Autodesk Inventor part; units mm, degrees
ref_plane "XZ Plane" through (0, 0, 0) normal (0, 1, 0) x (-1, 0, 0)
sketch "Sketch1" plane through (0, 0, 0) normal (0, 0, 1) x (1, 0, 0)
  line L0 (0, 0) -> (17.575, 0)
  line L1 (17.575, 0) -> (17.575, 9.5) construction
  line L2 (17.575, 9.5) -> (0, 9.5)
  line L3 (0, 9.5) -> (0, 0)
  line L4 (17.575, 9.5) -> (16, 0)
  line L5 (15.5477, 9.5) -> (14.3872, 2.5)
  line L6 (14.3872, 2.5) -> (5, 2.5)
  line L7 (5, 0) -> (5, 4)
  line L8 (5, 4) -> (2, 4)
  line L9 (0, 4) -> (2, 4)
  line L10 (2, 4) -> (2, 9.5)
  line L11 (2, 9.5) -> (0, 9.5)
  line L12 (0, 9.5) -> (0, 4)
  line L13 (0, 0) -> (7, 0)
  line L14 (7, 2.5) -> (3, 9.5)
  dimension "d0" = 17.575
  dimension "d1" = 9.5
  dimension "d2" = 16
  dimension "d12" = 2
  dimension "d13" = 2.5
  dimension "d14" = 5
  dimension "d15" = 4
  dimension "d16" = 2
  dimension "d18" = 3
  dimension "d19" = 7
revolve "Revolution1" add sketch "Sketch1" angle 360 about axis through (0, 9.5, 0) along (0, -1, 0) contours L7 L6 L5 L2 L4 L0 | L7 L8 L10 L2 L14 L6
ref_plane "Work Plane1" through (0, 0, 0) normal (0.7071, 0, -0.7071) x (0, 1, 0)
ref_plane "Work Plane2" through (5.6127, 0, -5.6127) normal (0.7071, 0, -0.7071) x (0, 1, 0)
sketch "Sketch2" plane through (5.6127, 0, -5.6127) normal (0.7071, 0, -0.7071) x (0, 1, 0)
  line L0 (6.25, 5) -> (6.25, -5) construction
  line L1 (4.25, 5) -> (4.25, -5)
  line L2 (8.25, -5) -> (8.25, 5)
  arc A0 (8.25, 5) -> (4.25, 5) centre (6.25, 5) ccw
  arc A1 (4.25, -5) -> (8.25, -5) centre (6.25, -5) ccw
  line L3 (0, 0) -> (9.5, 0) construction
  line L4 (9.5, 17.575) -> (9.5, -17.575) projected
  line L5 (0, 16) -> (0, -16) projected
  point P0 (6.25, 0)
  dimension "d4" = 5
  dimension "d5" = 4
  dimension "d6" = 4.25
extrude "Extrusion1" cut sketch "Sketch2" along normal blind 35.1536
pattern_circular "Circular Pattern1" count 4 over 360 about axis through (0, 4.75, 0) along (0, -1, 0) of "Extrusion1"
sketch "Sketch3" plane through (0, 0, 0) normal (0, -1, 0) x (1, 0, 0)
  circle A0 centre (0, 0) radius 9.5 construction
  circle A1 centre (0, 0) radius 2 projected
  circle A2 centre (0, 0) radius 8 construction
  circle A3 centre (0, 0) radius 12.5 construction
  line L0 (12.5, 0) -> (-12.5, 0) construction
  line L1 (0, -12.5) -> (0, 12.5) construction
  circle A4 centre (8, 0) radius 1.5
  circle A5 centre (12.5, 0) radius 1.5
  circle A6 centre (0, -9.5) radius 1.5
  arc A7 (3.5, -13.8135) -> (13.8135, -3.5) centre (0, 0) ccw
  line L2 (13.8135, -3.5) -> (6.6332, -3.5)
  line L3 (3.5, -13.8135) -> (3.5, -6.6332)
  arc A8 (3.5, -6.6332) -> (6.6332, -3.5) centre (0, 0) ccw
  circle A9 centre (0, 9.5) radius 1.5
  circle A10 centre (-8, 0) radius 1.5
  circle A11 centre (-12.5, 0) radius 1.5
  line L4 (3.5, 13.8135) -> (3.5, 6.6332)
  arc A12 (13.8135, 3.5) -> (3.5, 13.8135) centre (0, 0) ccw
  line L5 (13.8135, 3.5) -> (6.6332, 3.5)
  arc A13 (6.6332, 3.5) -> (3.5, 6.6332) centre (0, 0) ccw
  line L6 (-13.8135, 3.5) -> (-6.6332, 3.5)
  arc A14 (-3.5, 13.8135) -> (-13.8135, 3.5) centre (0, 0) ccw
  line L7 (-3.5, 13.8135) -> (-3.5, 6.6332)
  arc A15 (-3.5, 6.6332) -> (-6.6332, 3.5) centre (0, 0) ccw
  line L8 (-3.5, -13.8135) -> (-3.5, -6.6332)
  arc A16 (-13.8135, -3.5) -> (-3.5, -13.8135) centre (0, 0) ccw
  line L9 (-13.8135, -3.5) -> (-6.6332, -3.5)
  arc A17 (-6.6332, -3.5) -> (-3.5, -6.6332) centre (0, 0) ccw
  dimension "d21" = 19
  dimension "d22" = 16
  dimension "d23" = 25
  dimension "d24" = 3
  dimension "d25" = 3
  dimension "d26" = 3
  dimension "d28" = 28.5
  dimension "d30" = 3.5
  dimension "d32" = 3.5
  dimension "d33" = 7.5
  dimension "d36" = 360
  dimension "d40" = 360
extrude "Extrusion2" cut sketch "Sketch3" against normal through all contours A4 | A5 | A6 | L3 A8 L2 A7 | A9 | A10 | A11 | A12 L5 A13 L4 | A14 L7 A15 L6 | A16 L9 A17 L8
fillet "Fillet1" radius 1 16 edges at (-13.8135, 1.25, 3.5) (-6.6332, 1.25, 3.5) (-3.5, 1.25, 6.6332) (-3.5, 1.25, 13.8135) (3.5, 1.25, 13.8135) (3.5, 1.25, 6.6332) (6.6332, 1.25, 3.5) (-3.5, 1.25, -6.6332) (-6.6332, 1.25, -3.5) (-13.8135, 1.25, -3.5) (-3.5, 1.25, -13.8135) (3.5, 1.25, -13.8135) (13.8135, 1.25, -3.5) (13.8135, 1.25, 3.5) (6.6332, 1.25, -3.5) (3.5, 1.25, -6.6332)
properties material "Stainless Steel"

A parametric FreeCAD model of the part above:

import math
import FreeCAD as App
import Part
import Sketcher


def edges_at(feature, points):
    """Names of the edges that pass closest to the given points."""
    edges = feature.Shape.Edges
    near = lambda p: min(range(len(edges)), key=lambda i: edges[i].distToShape(Part.Vertex(*p))[0])
    return sorted({f"Edge{near(p) + 1}" for p in points})

doc = App.newDocument("Part")
body = doc.addObject("PartDesign::Body", "Body")

# Sketch on XY plane
sketch1 = body.newObject("Sketcher::SketchObject", "Sketch")
sketch1.AttachmentSupport = (doc.getObject("XY_Plane"), [""])
sketch1.MapMode = "FlatFace"
sketch1.addGeometry(Part.LineSegment(App.Vector(5, 0, 0), App.Vector(16, 0, 0)), False)
sketch1.addGeometry(Part.LineSegment(App.Vector(16, 0, 0), App.Vector(17.6, 9.5, 0)), False)
sketch1.addGeometry(Part.LineSegment(App.Vector(17.6, 9.5, 0), App.Vector(15.5, 9.5, 0)), False)
sketch1.addGeometry(Part.LineSegment(App.Vector(15.5, 9.5, 0), App.Vector(14.4, 2.5, 0)), False)
sketch1.addGeometry(Part.LineSegment(App.Vector(14.4, 2.5, 0), App.Vector(7, 2.5, 0)), False)
sketch1.addGeometry(Part.LineSegment(App.Vector(7, 2.5, 0), App.Vector(3, 9.5, 0)), False)
sketch1.addGeometry(Part.LineSegment(App.Vector(3, 9.5, 0), App.Vector(2, 9.5, 0)), False)
sketch1.addGeometry(Part.LineSegment(App.Vector(2, 9.5, 0), App.Vector(2, 4, 0)), False)
sketch1.addGeometry(Part.LineSegment(App.Vector(2, 4, 0), App.Vector(5, 4, 0)), False)
sketch1.addGeometry(Part.LineSegment(App.Vector(5, 4, 0), App.Vector(5, 0, 0)), False)
sketch1.addConstraint(Sketcher.Constraint("Coincident", 0, 2, 1, 1))
sketch1.addConstraint(Sketcher.Constraint("Coincident", 1, 2, 2, 1))
sketch1.addConstraint(Sketcher.Constraint("Coincident", 2, 2, 3, 1))
sketch1.addConstraint(Sketcher.Constraint("Coincident", 3, 2, 4, 1))
sketch1.addConstraint(Sketcher.Constraint("Coincident", 4, 2, 5, 1))
sketch1.addConstraint(Sketcher.Constraint("Coincident", 5, 2, 6, 1))
sketch1.addConstraint(Sketcher.Constraint("Coincident", 6, 2, 7, 1))
sketch1.addConstraint(Sketcher.Constraint("Coincident", 7, 2, 8, 1))
sketch1.addConstraint(Sketcher.Constraint("Coincident", 8, 2, 9, 1))
sketch1.addConstraint(Sketcher.Constraint("Coincident", 9, 2, 0, 1))
sketch1.addConstraint(Sketcher.Constraint("Horizontal", 0))
sketch1.addConstraint(Sketcher.Constraint("Horizontal", 2))
sketch1.addConstraint(Sketcher.Constraint("Horizontal", 4))
sketch1.addConstraint(Sketcher.Constraint("Horizontal", 6))
sketch1.addConstraint(Sketcher.Constraint("Vertical", 7))
sketch1.addConstraint(Sketcher.Constraint("Horizontal", 8))
sketch1.addConstraint(Sketcher.Constraint("Vertical", 9))
sketch1.addConstraint(Sketcher.Constraint("PointOnObject", 0, 2, -1))
sketch1.addConstraint(Sketcher.Constraint("Parallel", 1, 3))
sketch1.addConstraint(Sketcher.Constraint("Horizontal", 2, 2, 5, 2))
sketch1.addConstraint(Sketcher.Constraint("DistanceX", 8, 1, 8, 2, 3.0))
sketch1.addConstraint(Sketcher.Constraint("DistanceY", 9, 2, 9, 1, 4.0))
sketch1.addConstraint(Sketcher.Constraint("DistanceX", -1, 1, 0, 2, 16.0))
sketch1.addConstraint(Sketcher.Constraint("DistanceX", -1, 1, 4, 2, 7.0))
sketch1.addConstraint(Sketcher.Constraint("DistanceX", -1, 1, 5, 2, 3.0))
sketch1.addConstraint(Sketcher.Constraint("DistanceX", -1, 1, 6, 2, 2.0))
sketch1.addConstraint(Sketcher.Constraint("DistanceY", 3, 2, 2, 2, 7.0))
sketch1.addConstraint(Sketcher.Constraint("DistanceY", -1, 1, 1, 2, 9.5))
sketch1.addConstraint(Sketcher.Constraint("DistanceX", -1, 1, 1, 2, 17.575))
sketch1.addConstraint(Sketcher.Constraint("DistanceX", 2, 2, 2, 1, 2.0273))
revolution = body.newObject("PartDesign::Revolution", "Revolution")
revolution.Profile = sketch1
revolution.ReferenceAxis = (sketch1, ["V_Axis"])
revolution.Angle = 360

# Sketch on an angled plane
sketch2 = body.newObject("Sketcher::SketchObject", "Sketch001")
sketch2.Placement = App.Placement(App.Vector(5.6127, 0, -5.6127), App.Rotation(App.Vector(0, 1, 0), App.Vector(0.707106781, 0, 0.707106781), App.Vector(0.707106781, 0, -0.707106781), "ZXY"))
sketch2.addGeometry(Part.ArcOfCircle(Part.Circle(App.Vector(6.2, 5, 0), App.Vector(0, 0, 1), 2), math.radians(0), math.radians(180)), False)
sketch2.addGeometry(Part.LineSegment(App.Vector(4.2, 5, 0), App.Vector(4.2, -5, 0)), False)
sketch2.addGeometry(Part.ArcOfCircle(Part.Circle(App.Vector(6.2, -5, 0), App.Vector(0, 0, 1), 2), math.radians(180), math.radians(360)), False)
sketch2.addGeometry(Part.LineSegment(App.Vector(8.2, -5, 0), App.Vector(8.2, 5, 0)), False)
sketch2.addConstraint(Sketcher.Constraint("Tangent", 0, 2, 1, 1))
sketch2.addConstraint(Sketcher.Constraint("Tangent", 1, 2, 2, 1))
sketch2.addConstraint(Sketcher.Constraint("Tangent", 2, 2, 3, 1))
sketch2.addConstraint(Sketcher.Constraint("Tangent", 3, 2, 0, 1))
sketch2.addConstraint(Sketcher.Constraint("Vertical", 1))
sketch2.addConstraint(Sketcher.Constraint("Vertical", 3))
sketch2.addConstraint(Sketcher.Constraint("Radius", 0, 2.0))
sketch2.addConstraint(Sketcher.Constraint("DistanceY", -1, 1, 0, 3, 5.0))
sketch2.addConstraint(Sketcher.Constraint("DistanceY", 2, 3, -1, 1, 5.0))
sketch2.addConstraint(Sketcher.Constraint("DistanceX", -1, 1, 0, 2, 4.25))
pocket1 = body.newObject("PartDesign::Pocket", "Pocket")
pocket1.Profile = sketch2
pocket1.Length = 35.1536
pocket1.Reversed = True
doc.recompute()

polarpattern = body.newObject("PartDesign::PolarPattern", "PolarPattern")
polarpattern.Originals = [pocket1]
polarpattern.Axis = (doc.getObject("Y_Axis"), [""])
polarpattern.Angle = 360
polarpattern.Occurrences = 4
body.Tip = polarpattern

# Sketch on XZ plane
sketch3 = body.newObject("Sketcher::SketchObject", "Sketch002")
sketch3.AttachmentSupport = (doc.getObject("XZ_Plane"), [""])
sketch3.MapMode = "FlatFace"
sketch3.addGeometry(Part.Circle(App.Vector(8, 0, 0), App.Vector(0, 0, 1), 1.5), False)
sketch3.addGeometry(Part.Circle(App.Vector(12.5, 0, 0), App.Vector(0, 0, 1), 1.5), False)
sketch3.addGeometry(Part.Circle(App.Vector(0, -9.5, 0), App.Vector(0, 0, 1), 1.5), False)
sketch3.addGeometry(Part.LineSegment(App.Vector(3.5, -6.6, 0), App.Vector(3.5, -13.8, 0)), False)
sketch3.addGeometry(Part.ArcOfCircle(Part.Circle(App.Vector(0, 0, 0), App.Vector(0, 0, 1), 14.3), math.radians(-76), math.radians(-14)), False)
sketch3.addGeometry(Part.LineSegment(App.Vector(13.8, -3.5, 0), App.Vector(6.6, -3.5, 0)), False)
sketch3.addGeometry(Part.ArcOfCircle(Part.Circle(App.Vector(0, 0, 0), App.Vector(0, 0, 1), 7.5), math.radians(-62), math.radians(-28)), False)
sketch3.addGeometry(Part.Circle(App.Vector(0, 9.5, 0), App.Vector(0, 0, 1), 1.5), False)
sketch3.addGeometry(Part.Circle(App.Vector(-8, 0, 0), App.Vector(0, 0, 1), 1.5), False)
sketch3.addGeometry(Part.Circle(App.Vector(-12.5, 0, 0), App.Vector(0, 0, 1), 1.5), False)
sketch3.addGeometry(Part.ArcOfCircle(Part.Circle(App.Vector(0, 0, 0), App.Vector(0, 0, 1), 14.3), math.radians(14), math.radians(76)), False)
sketch3.addGeometry(Part.LineSegment(App.Vector(3.5, 13.8, 0), App.Vector(3.5, 6.6, 0)), False)
sketch3.addGeometry(Part.ArcOfCircle(Part.Circle(App.Vector(0, 0, 0), App.Vector(0, 0, 1), 7.5), math.radians(28), math.radians(62)), False)
sketch3.addGeometry(Part.LineSegment(App.Vector(6.6, 3.5, 0), App.Vector(13.8, 3.5, 0)), False)
sketch3.addGeometry(Part.ArcOfCircle(Part.Circle(App.Vector(0, 0, 0), App.Vector(0, 0, 1), 14.3), math.radians(104), math.radians(166)), False)
sketch3.addGeometry(Part.LineSegment(App.Vector(-13.8, 3.5, 0), App.Vector(-6.6, 3.5, 0)), False)
sketch3.addGeometry(Part.ArcOfCircle(Part.Circle(App.Vector(0, 0, 0), App.Vector(0, 0, 1), 7.5), math.radians(118), math.radians(152)), False)
sketch3.addGeometry(Part.LineSegment(App.Vector(-3.5, 6.6, 0), App.Vector(-3.5, 13.8, 0)), False)
sketch3.addGeometry(Part.ArcOfCircle(Part.Circle(App.Vector(0, 0, 0), App.Vector(0, 0, 1), 14.3), math.radians(-166), math.radians(-104)), False)
sketch3.addGeometry(Part.LineSegment(App.Vector(-3.5, -13.8, 0), App.Vector(-3.5, -6.6, 0)), False)
sketch3.addGeometry(Part.ArcOfCircle(Part.Circle(App.Vector(0, 0, 0), App.Vector(0, 0, 1), 7.5), math.radians(-152), math.radians(-118)), False)
sketch3.addGeometry(Part.LineSegment(App.Vector(-6.6, -3.5, 0), App.Vector(-13.8, -3.5, 0)), False)
sketch3.addConstraint(Sketcher.Constraint("Coincident", 3, 2, 4, 1))
sketch3.addConstraint(Sketcher.Constraint("Coincident", 4, 2, 5, 1))
sketch3.addConstraint(Sketcher.Constraint("Coincident", 5, 2, 6, 2))
sketch3.addConstraint(Sketcher.Constraint("Coincident", 6, 1, 3, 1))
sketch3.addConstraint(Sketcher.Constraint("Coincident", 10, 2, 11, 1))
sketch3.addConstraint(Sketcher.Constraint("Coincident", 11, 2, 12, 2))
sketch3.addConstraint(Sketcher.Constraint("Coincident", 12, 1, 13, 1))
sketch3.addConstraint(Sketcher.Constraint("Coincident", 13, 2, 10, 1))
sketch3.addConstraint(Sketcher.Constraint("Coincident", 14, 2, 15, 1))
sketch3.addConstraint(Sketcher.Constraint("Coincident", 15, 2, 16, 2))
sketch3.addConstraint(Sketcher.Constraint("Coincident", 16, 1, 17, 1))
sketch3.addConstraint(Sketcher.Constraint("Coincident", 17, 2, 14, 1))
sketch3.addConstraint(Sketcher.Constraint("Coincident", 18, 2, 19, 1))
sketch3.addConstraint(Sketcher.Constraint("Coincident", 19, 2, 20, 2))
sketch3.addConstraint(Sketcher.Constraint("Coincident", 20, 1, 21, 1))
sketch3.addConstraint(Sketcher.Constraint("Coincident", 21, 2, 18, 1))
sketch3.addConstraint(Sketcher.Constraint("Vertical", 3))
sketch3.addConstraint(Sketcher.Constraint("Horizontal", 5))
sketch3.addConstraint(Sketcher.Constraint("Vertical", 11))
sketch3.addConstraint(Sketcher.Constraint("Horizontal", 13))
sketch3.addConstraint(Sketcher.Constraint("Horizontal", 15))
sketch3.addConstraint(Sketcher.Constraint("Vertical", 17))
sketch3.addConstraint(Sketcher.Constraint("Vertical", 19))
sketch3.addConstraint(Sketcher.Constraint("Horizontal", 21))
sketch3.addConstraint(Sketcher.Constraint("Coincident", 4, 3, -1, 1))
sketch3.addConstraint(Sketcher.Constraint("Coincident", 6, 3, -1, 1))
sketch3.addConstraint(Sketcher.Constraint("Coincident", 10, 3, -1, 1))
sketch3.addConstraint(Sketcher.Constraint("Coincident", 12, 3, -1, 1))
sketch3.addConstraint(Sketcher.Constraint("Coincident", 14, 3, -1, 1))
sketch3.addConstraint(Sketcher.Constraint("Coincident", 16, 3, -1, 1))
sketch3.addConstraint(Sketcher.Constraint("Coincident", 18, 3, -1, 1))
sketch3.addConstraint(Sketcher.Constraint("Coincident", 20, 3, -1, 1))
sketch3.addConstraint(Sketcher.Constraint("Equal", 0, 1))
sketch3.addConstraint(Sketcher.Constraint("Equal", 1, 2))
sketch3.addConstraint(Sketcher.Constraint("Equal", 2, 7))
sketch3.addConstraint(Sketcher.Constraint("Equal", 7, 8))
sketch3.addConstraint(Sketcher.Constraint("Equal", 8, 9))
sketch3.addConstraint(Sketcher.Constraint("Equal", 4, 10))
sketch3.addConstraint(Sketcher.Constraint("Equal", 6, 12))
sketch3.addConstraint(Sketcher.Constraint("Equal", 10, 14))
sketch3.addConstraint(Sketcher.Constraint("Equal", 12, 16))
sketch3.addConstraint(Sketcher.Constraint("Equal", 14, 18))
sketch3.addConstraint(Sketcher.Constraint("Equal", 16, 20))
sketch3.addConstraint(Sketcher.Constraint("Symmetric", 2, 3, 7, 3, -1, 1))
sketch3.addConstraint(Sketcher.Constraint("Symmetric", 0, 3, 8, 3, -1, 1))
sketch3.addConstraint(Sketcher.Constraint("Symmetric", 1, 3, 9, 3, -1, 1))
sketch3.addConstraint(Sketcher.Constraint("PointOnObject", 0, 3, -1))
sketch3.addConstraint(Sketcher.Constraint("PointOnObject", 1, 3, -1))
sketch3.addConstraint(Sketcher.Constraint("PointOnObject", 2, 3, -2))
sketch3.addConstraint(Sketcher.Constraint("Horizontal", 13, 2, 14, 2))
sketch3.addConstraint(Sketcher.Constraint("Horizontal", 11, 2, 16, 1))
sketch3.addConstraint(Sketcher.Constraint("Horizontal", 3, 2, 18, 2))
sketch3.addConstraint(Sketcher.Constraint("Horizontal", 5, 2, 20, 1))
sketch3.addConstraint(Sketcher.Constraint("Vertical", 6, 1, 10, 2))
sketch3.addConstraint(Sketcher.Constraint("Vertical", 5, 2, 12, 1))
sketch3.addConstraint(Sketcher.Constraint("Equal", 21, 3))
sketch3.addConstraint(Sketcher.Constraint("Diameter", 0, 3.0))
sketch3.addConstraint(Sketcher.Constraint("Radius", 6, 7.5))
sketch3.addConstraint(Sketcher.Constraint("Radius", 4, 14.25))
sketch3.addConstraint(Sketcher.Constraint("DistanceY", 2, 3, 7, 3, 19.0))
sketch3.addConstraint(Sketcher.Constraint("DistanceX", 8, 3, 0, 3, 16.0))
sketch3.addConstraint(Sketcher.Constraint("DistanceX", -1, 1, 3, 2, 3.5))
sketch3.addConstraint(Sketcher.Constraint("DistanceX", -1, 1, 1, 3, 12.5))
pocket2 = body.newObject("PartDesign::Pocket", "Pocket001")
pocket2.Profile = sketch3
pocket2.Type = "ThroughAll"
doc.recompute()

fillet = body.newObject("PartDesign::Fillet", "Fillet")
fillet.Base = (pocket2, edges_at(pocket2, [
    (-13.813, 1.25, 3.5),
    (-6.633, 1.25, 3.5),
    (-3.5, 1.25, 6.633),
    (-3.5, 1.25, 13.813),
    (3.5, 1.25, 13.813),
    (3.5, 1.25, 6.633),
    (6.633, 1.25, 3.5),
    (-3.5, 1.25, -6.633),
    (-6.633, 1.25, -3.5),
    (-13.813, 1.25, -3.5),
    (-3.5, 1.25, -13.813),
    (3.5, 1.25, -13.813),
    (13.813, 1.25, -3.5),
    (13.813, 1.25, 3.5),
    (6.633, 1.25, -3.5),
    (3.5, 1.25, -6.633),
]))
fillet.Radius = 1

doc.recompute()
